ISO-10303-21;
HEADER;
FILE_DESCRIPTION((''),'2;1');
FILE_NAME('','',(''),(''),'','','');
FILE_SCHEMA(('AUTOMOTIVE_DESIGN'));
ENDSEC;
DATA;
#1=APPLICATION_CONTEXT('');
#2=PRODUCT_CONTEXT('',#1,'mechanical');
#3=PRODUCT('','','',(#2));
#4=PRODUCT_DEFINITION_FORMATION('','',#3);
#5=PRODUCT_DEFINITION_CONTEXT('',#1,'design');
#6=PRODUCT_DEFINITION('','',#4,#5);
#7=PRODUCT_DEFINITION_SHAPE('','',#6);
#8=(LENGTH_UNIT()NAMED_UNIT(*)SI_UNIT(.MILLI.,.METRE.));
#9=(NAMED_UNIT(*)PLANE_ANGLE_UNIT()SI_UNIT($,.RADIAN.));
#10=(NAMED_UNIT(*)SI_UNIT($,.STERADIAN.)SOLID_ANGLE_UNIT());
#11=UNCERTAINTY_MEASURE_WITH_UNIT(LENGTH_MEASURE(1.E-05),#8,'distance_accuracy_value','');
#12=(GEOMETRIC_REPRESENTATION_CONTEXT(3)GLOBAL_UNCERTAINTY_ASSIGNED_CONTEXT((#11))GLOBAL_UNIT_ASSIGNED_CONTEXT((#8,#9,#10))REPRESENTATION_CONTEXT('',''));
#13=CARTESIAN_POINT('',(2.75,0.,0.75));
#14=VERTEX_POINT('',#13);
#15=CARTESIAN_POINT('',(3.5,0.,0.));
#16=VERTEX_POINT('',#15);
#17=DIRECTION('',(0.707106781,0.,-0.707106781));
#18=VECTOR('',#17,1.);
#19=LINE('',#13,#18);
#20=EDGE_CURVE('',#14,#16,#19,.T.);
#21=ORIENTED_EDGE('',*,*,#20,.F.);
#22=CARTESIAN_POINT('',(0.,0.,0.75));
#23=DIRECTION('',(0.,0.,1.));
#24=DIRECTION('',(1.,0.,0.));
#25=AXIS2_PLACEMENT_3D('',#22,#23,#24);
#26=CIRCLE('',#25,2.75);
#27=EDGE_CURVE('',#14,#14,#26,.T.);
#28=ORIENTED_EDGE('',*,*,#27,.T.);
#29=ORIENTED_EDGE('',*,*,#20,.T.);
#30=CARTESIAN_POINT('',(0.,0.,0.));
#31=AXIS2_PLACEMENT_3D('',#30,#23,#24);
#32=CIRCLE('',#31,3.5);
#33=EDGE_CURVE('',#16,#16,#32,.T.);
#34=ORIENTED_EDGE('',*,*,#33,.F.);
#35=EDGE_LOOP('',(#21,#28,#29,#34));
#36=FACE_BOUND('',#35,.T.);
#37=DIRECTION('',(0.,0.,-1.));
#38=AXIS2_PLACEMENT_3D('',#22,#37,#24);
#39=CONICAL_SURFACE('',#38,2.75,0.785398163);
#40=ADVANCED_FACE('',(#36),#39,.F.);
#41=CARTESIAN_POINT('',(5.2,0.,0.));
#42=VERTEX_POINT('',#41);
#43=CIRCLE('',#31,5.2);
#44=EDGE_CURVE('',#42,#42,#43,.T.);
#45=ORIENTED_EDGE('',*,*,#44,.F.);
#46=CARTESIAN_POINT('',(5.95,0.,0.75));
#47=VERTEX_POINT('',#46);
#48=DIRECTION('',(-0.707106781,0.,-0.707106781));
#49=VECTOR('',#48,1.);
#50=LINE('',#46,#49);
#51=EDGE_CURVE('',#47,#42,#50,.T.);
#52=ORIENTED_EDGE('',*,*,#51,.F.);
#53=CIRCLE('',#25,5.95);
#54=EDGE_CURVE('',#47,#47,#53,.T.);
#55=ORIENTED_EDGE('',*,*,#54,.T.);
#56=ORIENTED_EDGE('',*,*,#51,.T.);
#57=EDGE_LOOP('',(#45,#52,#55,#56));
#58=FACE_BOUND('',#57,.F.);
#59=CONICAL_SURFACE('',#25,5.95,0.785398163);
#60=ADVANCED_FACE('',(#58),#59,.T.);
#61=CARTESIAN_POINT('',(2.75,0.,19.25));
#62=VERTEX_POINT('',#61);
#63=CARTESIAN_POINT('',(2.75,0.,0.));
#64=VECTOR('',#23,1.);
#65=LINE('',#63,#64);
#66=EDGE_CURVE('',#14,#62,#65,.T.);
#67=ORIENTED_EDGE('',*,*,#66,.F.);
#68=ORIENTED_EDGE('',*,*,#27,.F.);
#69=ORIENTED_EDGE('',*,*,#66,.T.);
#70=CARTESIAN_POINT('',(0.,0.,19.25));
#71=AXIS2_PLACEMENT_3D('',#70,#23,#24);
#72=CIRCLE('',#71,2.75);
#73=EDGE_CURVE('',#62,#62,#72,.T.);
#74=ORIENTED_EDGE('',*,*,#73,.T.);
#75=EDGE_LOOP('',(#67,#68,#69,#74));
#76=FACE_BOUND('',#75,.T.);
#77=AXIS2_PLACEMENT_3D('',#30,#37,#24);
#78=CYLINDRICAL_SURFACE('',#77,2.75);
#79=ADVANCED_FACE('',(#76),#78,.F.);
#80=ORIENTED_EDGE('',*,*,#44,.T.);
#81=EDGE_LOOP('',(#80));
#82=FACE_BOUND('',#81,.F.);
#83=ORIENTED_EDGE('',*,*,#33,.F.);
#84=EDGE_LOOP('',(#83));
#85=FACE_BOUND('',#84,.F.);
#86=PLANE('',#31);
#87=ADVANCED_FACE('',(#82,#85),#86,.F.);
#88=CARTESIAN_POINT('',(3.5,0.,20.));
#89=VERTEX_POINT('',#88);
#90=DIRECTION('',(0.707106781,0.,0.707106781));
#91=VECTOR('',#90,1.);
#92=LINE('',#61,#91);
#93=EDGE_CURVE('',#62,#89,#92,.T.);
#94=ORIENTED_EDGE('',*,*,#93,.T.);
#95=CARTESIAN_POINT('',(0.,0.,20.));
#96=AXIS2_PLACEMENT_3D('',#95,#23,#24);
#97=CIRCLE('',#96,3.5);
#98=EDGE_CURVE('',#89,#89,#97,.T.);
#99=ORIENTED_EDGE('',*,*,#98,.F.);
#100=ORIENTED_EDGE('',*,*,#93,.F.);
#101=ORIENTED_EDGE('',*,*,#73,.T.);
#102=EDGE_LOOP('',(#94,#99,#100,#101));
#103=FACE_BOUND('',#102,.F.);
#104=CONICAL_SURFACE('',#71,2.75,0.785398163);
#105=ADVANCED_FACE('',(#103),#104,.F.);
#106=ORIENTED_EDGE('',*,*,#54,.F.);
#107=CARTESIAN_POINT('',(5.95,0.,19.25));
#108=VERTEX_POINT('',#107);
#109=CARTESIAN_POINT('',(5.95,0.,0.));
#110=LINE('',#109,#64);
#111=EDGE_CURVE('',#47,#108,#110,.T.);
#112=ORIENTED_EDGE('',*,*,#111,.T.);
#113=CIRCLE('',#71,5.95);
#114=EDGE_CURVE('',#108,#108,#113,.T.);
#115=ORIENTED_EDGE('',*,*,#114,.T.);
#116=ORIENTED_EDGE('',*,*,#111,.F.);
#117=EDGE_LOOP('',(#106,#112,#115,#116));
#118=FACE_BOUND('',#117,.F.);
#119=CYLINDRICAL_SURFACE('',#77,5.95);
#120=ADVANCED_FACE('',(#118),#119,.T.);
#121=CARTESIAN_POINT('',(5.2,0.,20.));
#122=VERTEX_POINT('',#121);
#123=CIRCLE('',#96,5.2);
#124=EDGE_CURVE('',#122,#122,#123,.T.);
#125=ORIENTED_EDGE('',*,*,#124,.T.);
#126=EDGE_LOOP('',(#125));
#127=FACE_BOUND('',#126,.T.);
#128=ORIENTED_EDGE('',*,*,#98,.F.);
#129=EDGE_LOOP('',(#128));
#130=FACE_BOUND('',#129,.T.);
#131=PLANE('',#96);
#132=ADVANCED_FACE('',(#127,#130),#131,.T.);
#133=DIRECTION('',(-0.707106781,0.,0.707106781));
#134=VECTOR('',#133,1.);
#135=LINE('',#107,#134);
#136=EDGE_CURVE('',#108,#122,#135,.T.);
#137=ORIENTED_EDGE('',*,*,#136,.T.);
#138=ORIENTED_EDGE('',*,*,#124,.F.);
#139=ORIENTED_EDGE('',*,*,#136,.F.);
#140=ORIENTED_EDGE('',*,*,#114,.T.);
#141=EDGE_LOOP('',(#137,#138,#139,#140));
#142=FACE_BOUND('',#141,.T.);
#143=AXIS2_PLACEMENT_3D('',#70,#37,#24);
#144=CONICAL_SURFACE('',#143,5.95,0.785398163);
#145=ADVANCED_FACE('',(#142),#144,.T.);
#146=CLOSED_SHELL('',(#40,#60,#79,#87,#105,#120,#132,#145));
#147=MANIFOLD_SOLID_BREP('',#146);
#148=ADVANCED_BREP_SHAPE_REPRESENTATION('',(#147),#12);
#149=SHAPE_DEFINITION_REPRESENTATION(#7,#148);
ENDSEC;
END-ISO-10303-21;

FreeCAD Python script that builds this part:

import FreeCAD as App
import Part
import Sketcher
from FreeCAD import Vector
Q = App.Units.Quantity


def edges_at(feature, points):
    """Names of the edges that pass closest to the given points."""
    edges = feature.Shape.Edges
    near = lambda p: min(range(len(edges)), key=lambda i: edges[i].distToShape(Part.Vertex(*p))[0])
    return sorted({f"Edge{near(p) + 1}" for p in points})

doc = App.newDocument("Part")
body = doc.addObject("PartDesign::Body", "Body")

sketch1 = body.newObject("Sketcher::SketchObject", "Sketch")
sketch1.AttachmentSupport = (doc.getObject("XY_Plane"), [""])
sketch1.MapMode = "FlatFace"
sketch1.addGeometry(Part.Circle(Vector(0, 0, 0), Vector(0, 0, 1), 5.95), False)
sketch1.addGeometry(Part.Circle(Vector(0, 0, 0), Vector(0, 0, 1), 2.75), False)
sketch1.addConstraint(Sketcher.Constraint("Coincident", 0, 3, -1, 1))
sketch1.addConstraint(Sketcher.Constraint("Coincident", 1, 3, -1, 1))
sketch1.addConstraint(Sketcher.Constraint("Diameter", 0, Q("11.9 mm")))
sketch1.addConstraint(Sketcher.Constraint("Diameter", 1, Q("5.5 mm")))
pad1 = body.newObject("PartDesign::Pad", "Pad")
pad1.Profile = sketch1
pad1.Length = 20
doc.recompute()

chamfer = body.newObject("PartDesign::Chamfer", "Chamfer")
chamfer.Base = (pad1, edges_at(pad1, [
    (-2.75, 0, 20),
    (-5.95, 0, 20),
    (-2.75, 0, 0),
    (-5.95, 0, 0),
]))
chamfer.Size = 0.75

doc.recompute()
